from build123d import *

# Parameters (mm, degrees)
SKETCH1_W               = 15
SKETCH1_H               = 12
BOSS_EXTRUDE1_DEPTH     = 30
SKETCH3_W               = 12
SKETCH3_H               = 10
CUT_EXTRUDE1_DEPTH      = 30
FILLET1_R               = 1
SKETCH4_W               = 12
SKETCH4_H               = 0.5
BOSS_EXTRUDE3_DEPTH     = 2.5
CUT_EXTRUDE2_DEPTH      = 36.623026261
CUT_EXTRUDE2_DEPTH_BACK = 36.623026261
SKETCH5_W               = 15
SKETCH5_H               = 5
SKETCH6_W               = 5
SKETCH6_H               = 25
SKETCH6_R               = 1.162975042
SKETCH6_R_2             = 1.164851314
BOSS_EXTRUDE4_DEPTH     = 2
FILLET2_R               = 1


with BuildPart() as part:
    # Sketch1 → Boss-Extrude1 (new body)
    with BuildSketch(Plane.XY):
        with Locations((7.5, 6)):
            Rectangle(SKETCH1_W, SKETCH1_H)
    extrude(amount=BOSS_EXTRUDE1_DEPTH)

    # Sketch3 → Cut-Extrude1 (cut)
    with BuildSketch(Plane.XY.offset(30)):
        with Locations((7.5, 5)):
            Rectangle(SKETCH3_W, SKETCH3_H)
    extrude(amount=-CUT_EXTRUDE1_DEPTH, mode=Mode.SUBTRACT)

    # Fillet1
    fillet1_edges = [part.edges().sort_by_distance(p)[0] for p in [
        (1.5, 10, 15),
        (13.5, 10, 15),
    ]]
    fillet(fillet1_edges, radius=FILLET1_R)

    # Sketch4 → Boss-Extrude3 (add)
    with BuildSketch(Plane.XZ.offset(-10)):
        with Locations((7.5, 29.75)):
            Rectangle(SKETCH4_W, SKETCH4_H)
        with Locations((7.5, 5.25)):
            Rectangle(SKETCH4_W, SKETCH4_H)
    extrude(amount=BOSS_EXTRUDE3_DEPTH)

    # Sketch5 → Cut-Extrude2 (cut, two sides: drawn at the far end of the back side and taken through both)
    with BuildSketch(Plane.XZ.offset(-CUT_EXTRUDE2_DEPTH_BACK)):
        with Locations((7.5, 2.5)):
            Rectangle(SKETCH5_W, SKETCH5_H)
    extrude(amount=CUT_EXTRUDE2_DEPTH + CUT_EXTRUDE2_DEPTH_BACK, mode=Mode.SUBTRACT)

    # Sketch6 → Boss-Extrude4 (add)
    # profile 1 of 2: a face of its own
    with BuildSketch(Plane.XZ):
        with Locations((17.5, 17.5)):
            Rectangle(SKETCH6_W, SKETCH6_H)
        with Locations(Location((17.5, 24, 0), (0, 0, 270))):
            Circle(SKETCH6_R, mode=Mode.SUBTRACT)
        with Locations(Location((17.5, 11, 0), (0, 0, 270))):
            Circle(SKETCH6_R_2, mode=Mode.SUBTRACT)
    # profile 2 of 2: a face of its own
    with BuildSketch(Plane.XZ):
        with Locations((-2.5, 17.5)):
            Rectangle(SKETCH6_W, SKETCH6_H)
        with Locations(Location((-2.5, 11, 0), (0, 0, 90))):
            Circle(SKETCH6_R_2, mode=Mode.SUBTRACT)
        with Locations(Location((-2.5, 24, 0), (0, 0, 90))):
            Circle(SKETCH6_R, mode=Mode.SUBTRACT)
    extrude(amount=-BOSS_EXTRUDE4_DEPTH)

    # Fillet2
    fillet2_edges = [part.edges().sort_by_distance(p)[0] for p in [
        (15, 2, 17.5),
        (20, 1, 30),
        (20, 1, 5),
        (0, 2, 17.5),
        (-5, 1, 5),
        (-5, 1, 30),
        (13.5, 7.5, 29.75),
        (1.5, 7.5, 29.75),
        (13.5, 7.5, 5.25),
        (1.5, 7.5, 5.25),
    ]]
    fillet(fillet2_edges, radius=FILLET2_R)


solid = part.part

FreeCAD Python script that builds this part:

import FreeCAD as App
import Part
import Sketcher
from FreeCAD import Vector
Q = App.Units.Quantity


def edges_at(feature, points):
    """Names of the edges that pass closest to the given points."""
    edges = feature.Shape.Edges
    near = lambda p: min(range(len(edges)), key=lambda i: edges[i].distToShape(Part.Vertex(*p))[0])
    return sorted({f"Edge{near(p) + 1}" for p in points})


def add_polygon(sketch, points):
    """Adds a closed chain of lines whose ends are joined by coincident constraints."""
    first, n = sketch.GeometryCount, len(points)
    for a, b in zip(points, points[1:] + points[:1]):
        sketch.addGeometry(Part.LineSegment(App.Vector(*a, 0), App.Vector(*b, 0)), False)
    for i in range(n):
        sketch.addConstraint(Sketcher.Constraint("Coincident", first + i, 2, first + (i + 1) % n, 1))

doc = App.newDocument("Part")
body = doc.addObject("PartDesign::Body", "Body")

# Sketch on XY plane
sketch1 = doc.addObject("Sketcher::SketchObject", "Sketch")
body.addObject(sketch1)
sketch1.AttachmentSupport = (doc.XY_Plane, [""])
sketch1.MapMode = "FlatFace"
add_polygon(sketch1, [(0, 12), (0, 0), (15, 0), (15, 12)])  # lines 0-3
sketch1.addConstraint([
    Sketcher.Constraint("Vertical", 0),
    Sketcher.Constraint("Horizontal", 1),
    Sketcher.Constraint("Vertical", 2),
    Sketcher.Constraint("Horizontal", 3),
    Sketcher.Constraint("Coincident", 0, 2, -1, 1),
    Sketcher.Constraint("DistanceX", 1, 1, 1, 2, Q("15 mm")),
    Sketcher.Constraint("DistanceY", 0, 2, 0, 1, Q("12 mm")),
])
pad1 = doc.addObject("PartDesign::Pad", "Pad")
body.addObject(pad1)
pad1.Profile = sketch1
pad1.Length = 30

# Sketch on XY plane
sketch2 = doc.addObject("Sketcher::SketchObject", "Sketch001")
body.addObject(sketch2)
sketch2.AttachmentSupport = (doc.XY_Plane, [""])
sketch2.MapMode = "FlatFace"
sketch2.AttachmentOffset = App.Placement(Vector(0, 0, 30), App.Rotation())
add_polygon(sketch2, [(1.5, 10), (1.5, 0), (13.5, 0), (13.5, 10)])  # lines 0-3
sketch2.addConstraint([
    Sketcher.Constraint("Vertical", 0),
    Sketcher.Constraint("Horizontal", 1),
    Sketcher.Constraint("Vertical", 2),
    Sketcher.Constraint("Horizontal", 3),
    Sketcher.Constraint("PointOnObject", 0, 2, -1),
    Sketcher.Constraint("DistanceX", 1, 1, 1, 2, Q("12 mm")),
    Sketcher.Constraint("DistanceY", 0, 2, 0, 1, Q("10 mm")),
    Sketcher.Constraint("DistanceX", -1, 1, 0, 2, Q("1.5 mm")),
])
pocket1 = doc.addObject("PartDesign::Pocket", "Pocket")
body.addObject(pocket1)
pocket1.Profile = sketch2
pocket1.Length = 30
doc.recompute()

fillet = doc.addObject("PartDesign::Fillet", "Fillet")
body.addObject(fillet)
fillet.Base = (pocket1, edges_at(pocket1, [(1.5, 10, 15), (13.5, 10, 15)]))
fillet.Radius = 1

# Sketch on XZ plane
sketch3 = doc.addObject("Sketcher::SketchObject", "Sketch002")
body.addObject(sketch3)
sketch3.AttachmentSupport = (doc.XZ_Plane, [""])
sketch3.MapMode = "FlatFace"
sketch3.AttachmentOffset = App.Placement(Vector(0, 0, -10), App.Rotation())
add_polygon(sketch3, [(1.5, 30), (1.5, 29.5), (13.5, 29.5), (13.5, 30)])  # lines 0-3
add_polygon(sketch3, [(1.5, 5.5), (1.5, 5), (13.5, 5), (13.5, 5.5)])  # lines 4-7
sketch3.addConstraint([
    Sketcher.Constraint("Vertical", 0),
    Sketcher.Constraint("Horizontal", 1),
    Sketcher.Constraint("Vertical", 2),
    Sketcher.Constraint("Horizontal", 3),
    Sketcher.Constraint("Vertical", 4),
    Sketcher.Constraint("Horizontal", 5),
    Sketcher.Constraint("Vertical", 6),
    Sketcher.Constraint("Horizontal", 7),
    Sketcher.Constraint("Vertical", 3, 2, 4, 2),
    Sketcher.Constraint("Vertical", 2, 2, 5, 2),
    Sketcher.Constraint("Equal", 2, 4),
    Sketcher.Constraint("DistanceX", 1, 1, 1, 2, Q("12 mm")),
    Sketcher.Constraint("DistanceY", 0, 2, 0, 1, Q("0.5 mm")),
    Sketcher.Constraint("DistanceY", -1, 1, 2, 2, Q("30 mm")),
    Sketcher.Constraint("DistanceY", -1, 1, 4, 2, Q("5 mm")),
    Sketcher.Constraint("DistanceX", -1, 1, 0, 2, Q("1.5 mm")),
])
pad2 = doc.addObject("PartDesign::Pad", "Pad001")
body.addObject(pad2)
pad2.Profile = sketch3
pad2.Length = 2.5

# Sketch on XZ plane
sketch4 = doc.addObject("Sketcher::SketchObject", "Sketch003")
body.addObject(sketch4)
sketch4.AttachmentSupport = (doc.XZ_Plane, [""])
sketch4.MapMode = "FlatFace"
add_polygon(sketch4, [(0, 5), (0, 0), (15, 0), (15, 5)])  # lines 0-3
sketch4.addConstraint([
    Sketcher.Constraint("Vertical", 0),
    Sketcher.Constraint("Horizontal", 1),
    Sketcher.Constraint("Vertical", 2),
    Sketcher.Constraint("Horizontal", 3),
    Sketcher.Constraint("Coincident", 0, 2, -1, 1),
    Sketcher.Constraint("DistanceX", 1, 1, 1, 2, Q("15 mm")),
    Sketcher.Constraint("DistanceY", 0, 2, 0, 1, Q("5 mm")),
])
pocket2 = doc.addObject("PartDesign::Pocket", "Pocket001")
body.addObject(pocket2)
pocket2.Profile = sketch4
pocket2.Type = "ThroughAll"
pocket2.Midplane = True

# Sketch on XZ plane
sketch5 = doc.addObject("Sketcher::SketchObject", "Sketch004")
body.addObject(sketch5)
sketch5.AttachmentSupport = (doc.XZ_Plane, [""])
sketch5.MapMode = "FlatFace"
add_polygon(sketch5, [(15, 30), (15, 5), (20, 5), (20, 30)])  # lines 0-3
sketch5.addGeometry(Part.Circle(Vector(17.5, 11, 0), Vector(0, 0, 1), 1.164851), False)  # 4
sketch5.addGeometry(Part.Circle(Vector(17.5, 24, 0), Vector(0, 0, 1), 1.162975), False)  # 5
add_polygon(sketch5, [(-5, 30), (-5, 5), (0, 5), (0, 30)])  # lines 6-9
sketch5.addGeometry(Part.Circle(Vector(-2.5, 11, 0), Vector(0, 0, 1), 1.164851), False)  # 10
sketch5.addGeometry(Part.Circle(Vector(-2.5, 24, 0), Vector(0, 0, 1), 1.162975), False)  # 11
sketch5.addConstraint([
    Sketcher.Constraint("Vertical", 0),
    Sketcher.Constraint("Horizontal", 1),
    Sketcher.Constraint("Vertical", 2),
    Sketcher.Constraint("Horizontal", 3),
    Sketcher.Constraint("Vertical", 6),
    Sketcher.Constraint("Horizontal", 7),
    Sketcher.Constraint("Vertical", 8),
    Sketcher.Constraint("Horizontal", 9),
    Sketcher.Constraint("Equal", 4, 10),
    Sketcher.Constraint("Equal", 5, 11),
    Sketcher.Constraint("PointOnObject", 7, 2, -2),
    Sketcher.Constraint("Horizontal", 4, 3, 10, 3),
    Sketcher.Constraint("Horizontal", 5, 3, 11, 3),
    Sketcher.Constraint("Horizontal", 1, 2, 6, 2),
    Sketcher.Constraint("Horizontal", 3, 2, 8, 2),
    Sketcher.Constraint("Vertical", 4, 3, 5, 3),
    Sketcher.Constraint("Vertical", 10, 3, 11, 3),
    Sketcher.Constraint("Equal", 3, 7),
    Sketcher.Constraint("DistanceX", 1, 1, 1, 2, Q("5 mm")),
    Sketcher.Constraint("DistanceY", 0, 2, 0, 1, Q("25 mm")),
    Sketcher.Constraint("DistanceY", -1, 1, 4, 3, Q("11 mm")),
    Sketcher.Constraint("DistanceY", -1, 1, 5, 3, Q("24 mm")),
    Sketcher.Constraint("DistanceX", -1, 1, 0, 2, Q("15 mm")),
    Sketcher.Constraint("DistanceY", -1, 1, 0, 2, Q("5 mm")),
    Sketcher.Constraint("DistanceX", 10, 3, 4, 3, Q("20 mm")),
    Sketcher.Constraint("DistanceX", -1, 1, 4, 3, Q("17.5 mm")),
    Sketcher.Constraint("Diameter", 5, Q("2.32595 mm")),
    Sketcher.Constraint("Diameter", 4, Q("2.329703 mm")),
])
pad3 = doc.addObject("PartDesign::Pad", "Pad002")
body.addObject(pad3)
pad3.Profile = sketch5
pad3.Length = 2
pad3.Reversed = True
doc.recompute()

fillet2 = doc.addObject("PartDesign::Fillet", "Fillet001")
body.addObject(fillet2)
fillet2.Base = (pad3, edges_at(pad3, [
    (15, 2, 17.5),
    (20, 1, 30),
    (20, 1, 5),
    (0, 2, 17.5),
    (-5, 1, 5),
    (-5, 1, 30),
    (13.5, 7.5, 29.75),
    (1.5, 7.5, 29.75),
    (13.5, 7.5, 5.25),
    (1.5, 7.5, 5.25),
]))
fillet2.Radius = 1

doc.recompute()
